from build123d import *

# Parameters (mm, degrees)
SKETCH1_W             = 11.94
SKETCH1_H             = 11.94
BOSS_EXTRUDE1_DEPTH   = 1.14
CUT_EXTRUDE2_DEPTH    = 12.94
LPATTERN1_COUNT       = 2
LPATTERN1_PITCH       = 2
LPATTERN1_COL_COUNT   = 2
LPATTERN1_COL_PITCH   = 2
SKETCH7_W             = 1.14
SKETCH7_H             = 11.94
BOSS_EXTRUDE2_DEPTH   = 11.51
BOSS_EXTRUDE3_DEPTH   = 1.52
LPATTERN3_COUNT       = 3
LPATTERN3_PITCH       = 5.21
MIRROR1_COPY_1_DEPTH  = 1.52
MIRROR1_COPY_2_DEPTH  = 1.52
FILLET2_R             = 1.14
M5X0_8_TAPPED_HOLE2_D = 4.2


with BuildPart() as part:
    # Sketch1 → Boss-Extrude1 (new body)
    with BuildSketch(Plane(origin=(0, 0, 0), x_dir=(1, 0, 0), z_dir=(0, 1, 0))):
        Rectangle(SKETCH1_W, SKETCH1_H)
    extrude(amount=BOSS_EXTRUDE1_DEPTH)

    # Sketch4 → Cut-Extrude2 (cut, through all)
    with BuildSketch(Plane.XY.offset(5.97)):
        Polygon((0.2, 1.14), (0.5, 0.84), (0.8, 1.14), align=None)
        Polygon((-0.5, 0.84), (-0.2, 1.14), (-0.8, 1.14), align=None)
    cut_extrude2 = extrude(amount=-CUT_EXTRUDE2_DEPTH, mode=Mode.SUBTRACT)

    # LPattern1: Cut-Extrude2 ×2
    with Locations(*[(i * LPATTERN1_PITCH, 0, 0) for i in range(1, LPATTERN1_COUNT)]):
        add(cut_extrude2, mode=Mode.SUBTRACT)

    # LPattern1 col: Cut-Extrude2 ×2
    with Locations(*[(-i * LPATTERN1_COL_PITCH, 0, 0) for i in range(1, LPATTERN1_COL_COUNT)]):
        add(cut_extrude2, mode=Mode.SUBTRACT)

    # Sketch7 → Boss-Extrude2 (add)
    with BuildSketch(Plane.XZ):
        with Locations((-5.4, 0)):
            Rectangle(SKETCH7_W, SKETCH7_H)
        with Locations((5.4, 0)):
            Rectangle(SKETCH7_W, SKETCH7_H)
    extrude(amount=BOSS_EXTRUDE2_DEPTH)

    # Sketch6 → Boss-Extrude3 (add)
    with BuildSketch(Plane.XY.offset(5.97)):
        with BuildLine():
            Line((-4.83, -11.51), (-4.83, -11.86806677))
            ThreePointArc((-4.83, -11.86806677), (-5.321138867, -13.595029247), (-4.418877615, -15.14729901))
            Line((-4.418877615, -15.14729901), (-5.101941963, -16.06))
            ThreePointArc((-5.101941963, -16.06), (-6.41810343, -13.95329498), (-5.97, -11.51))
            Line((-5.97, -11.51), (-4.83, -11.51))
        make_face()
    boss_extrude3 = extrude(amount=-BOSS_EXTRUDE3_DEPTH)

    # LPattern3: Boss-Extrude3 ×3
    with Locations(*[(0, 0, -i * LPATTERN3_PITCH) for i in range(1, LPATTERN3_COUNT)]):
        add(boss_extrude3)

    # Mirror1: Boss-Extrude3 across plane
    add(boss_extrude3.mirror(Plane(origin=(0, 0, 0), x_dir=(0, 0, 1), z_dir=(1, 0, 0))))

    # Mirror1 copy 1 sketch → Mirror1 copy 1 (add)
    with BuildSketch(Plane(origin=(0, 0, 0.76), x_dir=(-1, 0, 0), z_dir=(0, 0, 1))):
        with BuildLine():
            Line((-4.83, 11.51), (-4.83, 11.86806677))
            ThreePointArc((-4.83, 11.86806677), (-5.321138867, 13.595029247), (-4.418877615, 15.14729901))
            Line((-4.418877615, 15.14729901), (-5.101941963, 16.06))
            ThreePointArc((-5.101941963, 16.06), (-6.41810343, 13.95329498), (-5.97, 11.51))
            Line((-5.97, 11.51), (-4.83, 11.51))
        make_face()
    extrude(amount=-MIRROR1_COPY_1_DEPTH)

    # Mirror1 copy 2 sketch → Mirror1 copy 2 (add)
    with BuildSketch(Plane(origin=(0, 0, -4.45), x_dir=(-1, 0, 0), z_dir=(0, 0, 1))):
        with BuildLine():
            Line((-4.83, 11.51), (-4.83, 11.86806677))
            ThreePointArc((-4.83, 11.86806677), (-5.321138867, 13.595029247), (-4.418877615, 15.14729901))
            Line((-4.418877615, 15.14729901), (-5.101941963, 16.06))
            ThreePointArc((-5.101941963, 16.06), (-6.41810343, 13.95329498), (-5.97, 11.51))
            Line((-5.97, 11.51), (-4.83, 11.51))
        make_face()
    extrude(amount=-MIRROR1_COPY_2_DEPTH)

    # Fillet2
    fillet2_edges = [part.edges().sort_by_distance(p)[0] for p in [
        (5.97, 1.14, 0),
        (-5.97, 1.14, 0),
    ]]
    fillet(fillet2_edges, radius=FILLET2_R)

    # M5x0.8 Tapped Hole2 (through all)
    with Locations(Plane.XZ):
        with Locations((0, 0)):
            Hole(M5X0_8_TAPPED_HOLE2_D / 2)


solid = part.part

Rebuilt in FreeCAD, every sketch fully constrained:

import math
import FreeCAD as App
import Part
import Sketcher
Q = App.Units.Quantity


def edges_at(feature, points):
    """Names of the edges that pass closest to the given points."""
    edges = feature.Shape.Edges
    near = lambda p: min(range(len(edges)), key=lambda i: edges[i].distToShape(Part.Vertex(*p))[0])
    return sorted({f"Edge{near(p) + 1}" for p in points})

doc = App.newDocument("Part")
body = doc.addObject("PartDesign::Body", "Body")

# Sketch on XZ plane
sketch1 = doc.addObject("Sketcher::SketchObject", "Sketch")
body.addObject(sketch1)
sketch1.AttachmentSupport = (doc.XZ_Plane, [""])
sketch1.MapMode = "FlatFace"
sketch1.addGeometry(Part.LineSegment(App.Vector(-5.97, -5.97, 0), App.Vector(-5.97, 5.97, 0)), False)
sketch1.addGeometry(Part.LineSegment(App.Vector(-5.97, 5.97, 0), App.Vector(5.97, 5.97, 0)), False)
sketch1.addGeometry(Part.LineSegment(App.Vector(5.97, 5.97, 0), App.Vector(5.97, -5.97, 0)), False)
sketch1.addGeometry(Part.LineSegment(App.Vector(5.97, -5.97, 0), App.Vector(-5.97, -5.97, 0)), False)
sketch1.addConstraint(Sketcher.Constraint("Coincident", 0, 2, 1, 1))
sketch1.addConstraint(Sketcher.Constraint("Coincident", 1, 2, 2, 1))
sketch1.addConstraint(Sketcher.Constraint("Coincident", 2, 2, 3, 1))
sketch1.addConstraint(Sketcher.Constraint("Coincident", 3, 2, 0, 1))
sketch1.addConstraint(Sketcher.Constraint("Vertical", 0))
sketch1.addConstraint(Sketcher.Constraint("Horizontal", 1))
sketch1.addConstraint(Sketcher.Constraint("Vertical", 2))
sketch1.addConstraint(Sketcher.Constraint("Horizontal", 3))
sketch1.addConstraint(Sketcher.Constraint("Symmetric", 0, 2, 2, 2, -1, 1))
sketch1.addConstraint(Sketcher.Constraint("Equal", 3, 0))
sketch1.addConstraint(Sketcher.Constraint("DistanceX", 1, 1, 1, 2, Q("11.94 mm")))
pad1 = doc.addObject("PartDesign::Pad", "Pad")
body.addObject(pad1)
pad1.Profile = sketch1
pad1.Length = 1.14
pad1.Reversed = True

# Sketch on XY plane
sketch2 = doc.addObject("Sketcher::SketchObject", "Sketch001")
body.addObject(sketch2)
sketch2.AttachmentSupport = (doc.XY_Plane, [""])
sketch2.MapMode = "FlatFace"
sketch2.AttachmentOffset = App.Placement(App.Vector(0, 0, 5.97), App.Rotation())
sketch2.addGeometry(Part.LineSegment(App.Vector(0.2, 1.14, 0), App.Vector(0.5, 0.84, 0)), False)
sketch2.addGeometry(Part.LineSegment(App.Vector(0.5, 0.84, 0), App.Vector(0.8, 1.14, 0)), False)
sketch2.addGeometry(Part.LineSegment(App.Vector(0.8, 1.14, 0), App.Vector(0.2, 1.14, 0)), False)
sketch2.addGeometry(Part.LineSegment(App.Vector(-0.5, 0.84, 0), App.Vector(-0.2, 1.14, 0)), False)
sketch2.addGeometry(Part.LineSegment(App.Vector(-0.2, 1.14, 0), App.Vector(-0.8, 1.14, 0)), False)
sketch2.addGeometry(Part.LineSegment(App.Vector(-0.8, 1.14, 0), App.Vector(-0.5, 0.84, 0)), False)
sketch2.addConstraint(Sketcher.Constraint("Coincident", 0, 2, 1, 1))
sketch2.addConstraint(Sketcher.Constraint("Coincident", 1, 2, 2, 1))
sketch2.addConstraint(Sketcher.Constraint("Coincident", 2, 2, 0, 1))
sketch2.addConstraint(Sketcher.Constraint("Coincident", 3, 2, 4, 1))
sketch2.addConstraint(Sketcher.Constraint("Coincident", 4, 2, 5, 1))
sketch2.addConstraint(Sketcher.Constraint("Coincident", 5, 2, 3, 1))
sketch2.addConstraint(Sketcher.Constraint("Horizontal", 2))
sketch2.addConstraint(Sketcher.Constraint("Horizontal", 4))
sketch2.addConstraint(Sketcher.Constraint("Symmetric", 2, 2, 3, 2, -2))
sketch2.addConstraint(Sketcher.Constraint("Symmetric", 0, 2, 5, 2, -2))
sketch2.addConstraint(Sketcher.Constraint("Perpendicular", 0, 1))
sketch2.addConstraint(Sketcher.Constraint("Parallel", 1, 3))
sketch2.addConstraint(Sketcher.Constraint("Perpendicular", 3, 5))
sketch2.addConstraint(Sketcher.Constraint("DistanceX", 2, 2, 2, 1, Q("0.6 mm")))
sketch2.addConstraint(Sketcher.Constraint("DistanceX", 3, 2, 1, 2, Q("1 mm")))
sketch2.addConstraint(Sketcher.Constraint("DistanceY", -1, 1, 0, 2, Q("0.84 mm")))
pocket1 = doc.addObject("PartDesign::Pocket", "Pocket")
body.addObject(pocket1)
pocket1.Profile = sketch2
pocket1.Type = "ThroughAll"
doc.recompute()

linearpattern = doc.addObject("PartDesign::LinearPattern", "LinearPattern")
body.addObject(linearpattern)
linearpattern.Originals = [pocket1]
linearpattern.Direction = (doc.X_Axis, [""])
linearpattern.Mode = "offset"
linearpattern.Offset = 2
linearpattern.Occurrences = 2
body.Tip = linearpattern
doc.recompute()

linearpattern2 = doc.addObject("PartDesign::LinearPattern", "LinearPattern001")
body.addObject(linearpattern2)
linearpattern2.Originals = [pocket1]
linearpattern2.Direction = (doc.X_Axis, [""])
linearpattern2.Mode = "offset"
linearpattern2.Offset = 2
linearpattern2.Occurrences = 2
linearpattern2.Reversed = True
body.Tip = linearpattern2

# Sketch on XZ plane
sketch3 = doc.addObject("Sketcher::SketchObject", "Sketch002")
body.addObject(sketch3)
sketch3.AttachmentSupport = (doc.XZ_Plane, [""])
sketch3.MapMode = "FlatFace"
sketch3.addGeometry(Part.LineSegment(App.Vector(-5.97, 5.97, 0), App.Vector(-5.97, -5.97, 0)), False)
sketch3.addGeometry(Part.LineSegment(App.Vector(-5.97, -5.97, 0), App.Vector(-4.83, -5.97, 0)), False)
sketch3.addGeometry(Part.LineSegment(App.Vector(-4.83, -5.97, 0), App.Vector(-4.83, 5.97, 0)), False)
sketch3.addGeometry(Part.LineSegment(App.Vector(-4.83, 5.97, 0), App.Vector(-5.97, 5.97, 0)), False)
sketch3.addGeometry(Part.LineSegment(App.Vector(4.83, 5.97, 0), App.Vector(4.83, -5.97, 0)), False)
sketch3.addGeometry(Part.LineSegment(App.Vector(4.83, -5.97, 0), App.Vector(5.97, -5.97, 0)), False)
sketch3.addGeometry(Part.LineSegment(App.Vector(5.97, -5.97, 0), App.Vector(5.97, 5.97, 0)), False)
sketch3.addGeometry(Part.LineSegment(App.Vector(5.97, 5.97, 0), App.Vector(4.83, 5.97, 0)), False)
sketch3.addConstraint(Sketcher.Constraint("Coincident", 0, 2, 1, 1))
sketch3.addConstraint(Sketcher.Constraint("Coincident", 1, 2, 2, 1))
sketch3.addConstraint(Sketcher.Constraint("Coincident", 2, 2, 3, 1))
sketch3.addConstraint(Sketcher.Constraint("Coincident", 3, 2, 0, 1))
sketch3.addConstraint(Sketcher.Constraint("Coincident", 4, 2, 5, 1))
sketch3.addConstraint(Sketcher.Constraint("Coincident", 5, 2, 6, 1))
sketch3.addConstraint(Sketcher.Constraint("Coincident", 6, 2, 7, 1))
sketch3.addConstraint(Sketcher.Constraint("Coincident", 7, 2, 4, 1))
sketch3.addConstraint(Sketcher.Constraint("Vertical", 0))
sketch3.addConstraint(Sketcher.Constraint("Horizontal", 1))
sketch3.addConstraint(Sketcher.Constraint("Vertical", 2))
sketch3.addConstraint(Sketcher.Constraint("Horizontal", 3))
sketch3.addConstraint(Sketcher.Constraint("Vertical", 4))
sketch3.addConstraint(Sketcher.Constraint("Horizontal", 5))
sketch3.addConstraint(Sketcher.Constraint("Vertical", 6))
sketch3.addConstraint(Sketcher.Constraint("Horizontal", 7))
sketch3.addConstraint(Sketcher.Constraint("Symmetric", 2, 2, 4, 2, -1, 1))
sketch3.addConstraint(Sketcher.Constraint("Symmetric", 0, 2, 6, 2, -1, 1))
sketch3.addConstraint(Sketcher.Constraint("Horizontal", 1, 2, 4, 2))
sketch3.addConstraint(Sketcher.Constraint("DistanceX", 1, 1, 1, 2, Q("1.14 mm")))
sketch3.addConstraint(Sketcher.Constraint("DistanceY", 0, 2, 0, 1, Q("11.94 mm")))
sketch3.addConstraint(Sketcher.Constraint("DistanceX", 0, 2, 4, 2, Q("10.8 mm")))
pad2 = doc.addObject("PartDesign::Pad", "Pad001")
body.addObject(pad2)
pad2.Profile = sketch3
pad2.Length = 11.51

# Sketch on XY plane
sketch4 = doc.addObject("Sketcher::SketchObject", "Sketch003")
body.addObject(sketch4)
sketch4.AttachmentSupport = (doc.XY_Plane, [""])
sketch4.MapMode = "FlatFace"
sketch4.AttachmentOffset = App.Placement(App.Vector(0, 0, 5.97), App.Rotation())
sketch4.addGeometry(Part.LineSegment(App.Vector(-4.83, -11.868067, 0), App.Vector(-4.83, -11.51, 0)), False)
sketch4.addGeometry(Part.LineSegment(App.Vector(-4.83, -11.51, 0), App.Vector(-5.97, -11.51, 0)), False)
sketch4.addGeometry(Part.ArcOfCircle(Part.Circle(App.Vector(-3.04345, -13.309472, 0), App.Vector(0, 0, 1), 3.435519), math.radians(148.413547), math.radians(233.188862)), False)
sketch4.addGeometry(Part.LineSegment(App.Vector(-5.101942, -16.06, 0), App.Vector(-4.418878, -15.147299, 0)), False)
sketch4.addGeometry(Part.ArcOfCircle(Part.Circle(App.Vector(-3.04345, -13.309472, 0), App.Vector(0, 0, 1), 2.295519), math.radians(141.103089), math.radians(233.188862)), False)
sketch4.addConstraint(Sketcher.Constraint("Coincident", 0, 2, 1, 1))
sketch4.addConstraint(Sketcher.Constraint("Coincident", 1, 2, 2, 1))
sketch4.addConstraint(Sketcher.Constraint("Coincident", 2, 2, 3, 1))
sketch4.addConstraint(Sketcher.Constraint("Coincident", 3, 2, 4, 2))
sketch4.addConstraint(Sketcher.Constraint("Coincident", 4, 1, 0, 1))
sketch4.addConstraint(Sketcher.Constraint("Vertical", 0))
sketch4.addConstraint(Sketcher.Constraint("Horizontal", 1))
sketch4.addConstraint(Sketcher.Constraint("Coincident", 4, 3, 2, 3))
sketch4.addConstraint(Sketcher.Constraint("DistanceX", 1, 2, 1, 1, Q("1.14 mm")))
sketch4.addConstraint(Sketcher.Constraint("Distance", 3, Q("1.14 mm")))
sketch4.addConstraint(Sketcher.Constraint("DistanceX", 0, 2, -1, 1, Q("4.83 mm")))
sketch4.addConstraint(Sketcher.Constraint("DistanceY", 0, 2, -1, 1, Q("11.51 mm")))
sketch4.addConstraint(Sketcher.Constraint("DistanceY", 2, 2, -1, 1, Q("16.06 mm")))
sketch4.addConstraint(Sketcher.Constraint("Radius", 2, Q("3.435519 mm")))
sketch4.addConstraint(Sketcher.Constraint("DistanceY", 3, 2, -1, 1, Q("15.147299 mm")))
sketch4.addConstraint(Sketcher.Constraint("DistanceY", 0, 1, 0, 2, Q("0.358067 mm")))
pad3 = doc.addObject("PartDesign::Pad", "Pad002")
body.addObject(pad3)
pad3.Profile = sketch4
pad3.Length = 1.52
pad3.Reversed = True
doc.recompute()

linearpattern3 = doc.addObject("PartDesign::LinearPattern", "LinearPattern002")
body.addObject(linearpattern3)
linearpattern3.Originals = [pad3]
linearpattern3.Direction = (doc.Z_Axis, [""])
linearpattern3.Mode = "offset"
linearpattern3.Offset = 5.21
linearpattern3.Occurrences = 3
linearpattern3.Reversed = True
body.Tip = linearpattern3
doc.recompute()

mirrored = doc.addObject("PartDesign::Mirrored", "Mirrored")
body.addObject(mirrored)
mirrored.Originals = [pad3]
mirrored.MirrorPlane = (doc.YZ_Plane, [""])
body.Tip = mirrored

# Sketch on XY plane
sketch5 = doc.addObject("Sketcher::SketchObject", "Sketch004")
body.addObject(sketch5)
sketch5.AttachmentSupport = (doc.XY_Plane, [""])
sketch5.MapMode = "FlatFace"
sketch5.AttachmentOffset = App.Placement(App.Vector(0, 0, 0.76), App.Rotation())
sketch5.addGeometry(Part.LineSegment(App.Vector(4.83, -11.51, 0), App.Vector(4.83, -11.868067, 0)), False)
sketch5.addGeometry(Part.ArcOfCircle(Part.Circle(App.Vector(3.04345, -13.309472, 0), App.Vector(0, 0, 1), 2.295519), math.radians(-53.188862), math.radians(38.896911)), False)
sketch5.addGeometry(Part.LineSegment(App.Vector(4.418878, -15.147299, 0), App.Vector(5.101942, -16.06, 0)), False)
sketch5.addGeometry(Part.ArcOfCircle(Part.Circle(App.Vector(3.04345, -13.309472, 0), App.Vector(0, 0, 1), 3.435519), math.radians(-53.188862), math.radians(31.586453)), False)
sketch5.addGeometry(Part.LineSegment(App.Vector(5.97, -11.51, 0), App.Vector(4.83, -11.51, 0)), False)
sketch5.addConstraint(Sketcher.Constraint("Coincident", 0, 2, 1, 2))
sketch5.addConstraint(Sketcher.Constraint("Coincident", 1, 1, 2, 1))
sketch5.addConstraint(Sketcher.Constraint("Coincident", 2, 2, 3, 1))
sketch5.addConstraint(Sketcher.Constraint("Coincident", 3, 2, 4, 1))
sketch5.addConstraint(Sketcher.Constraint("Coincident", 4, 2, 0, 1))
sketch5.addConstraint(Sketcher.Constraint("Vertical", 0))
sketch5.addConstraint(Sketcher.Constraint("Horizontal", 4))
sketch5.addConstraint(Sketcher.Constraint("Coincident", 3, 3, 1, 3))
sketch5.addConstraint(Sketcher.Constraint("DistanceX", 4, 2, 4, 1, Q("1.14 mm")))
sketch5.addConstraint(Sketcher.Constraint("Distance", 2, Q("1.14 mm")))
sketch5.addConstraint(Sketcher.Constraint("DistanceX", -1, 1, 0, 2, Q("4.83 mm")))
sketch5.addConstraint(Sketcher.Constraint("DistanceY", 2, 2, -1, 1, Q("16.06 mm")))
sketch5.addConstraint(Sketcher.Constraint("DistanceY", 3, 2, -1, 1, Q("11.51 mm")))
sketch5.addConstraint(Sketcher.Constraint("Radius", 1, Q("2.295519 mm")))
sketch5.addConstraint(Sketcher.Constraint("DistanceY", 1, 1, -1, 1, Q("15.147299 mm")))
sketch5.addConstraint(Sketcher.Constraint("DistanceY", 0, 2, 0, 1, Q("0.358067 mm")))
pad4 = doc.addObject("PartDesign::Pad", "Pad003")
body.addObject(pad4)
pad4.Profile = sketch5
pad4.Length = 1.52
pad4.Reversed = True

# Sketch on XY plane
sketch6 = doc.addObject("Sketcher::SketchObject", "Sketch005")
body.addObject(sketch6)
sketch6.AttachmentSupport = (doc.XY_Plane, [""])
sketch6.MapMode = "FlatFace"
sketch6.AttachmentOffset = App.Placement(App.Vector(0, 0, -4.45), App.Rotation())
sketch6.addGeometry(Part.LineSegment(App.Vector(4.83, -11.51, 0), App.Vector(4.83, -11.868067, 0)), False)
sketch6.addGeometry(Part.ArcOfCircle(Part.Circle(App.Vector(3.04345, -13.309472, 0), App.Vector(0, 0, 1), 2.295519), math.radians(-53.188862), math.radians(38.896911)), False)
sketch6.addGeometry(Part.LineSegment(App.Vector(4.418878, -15.147299, 0), App.Vector(5.101942, -16.06, 0)), False)
sketch6.addGeometry(Part.ArcOfCircle(Part.Circle(App.Vector(3.04345, -13.309472, 0), App.Vector(0, 0, 1), 3.435519), math.radians(-53.188862), math.radians(31.586453)), False)
sketch6.addGeometry(Part.LineSegment(App.Vector(5.97, -11.51, 0), App.Vector(4.83, -11.51, 0)), False)
sketch6.addConstraint(Sketcher.Constraint("Coincident", 0, 2, 1, 2))
sketch6.addConstraint(Sketcher.Constraint("Coincident", 1, 1, 2, 1))
sketch6.addConstraint(Sketcher.Constraint("Coincident", 2, 2, 3, 1))
sketch6.addConstraint(Sketcher.Constraint("Coincident", 3, 2, 4, 1))
sketch6.addConstraint(Sketcher.Constraint("Coincident", 4, 2, 0, 1))
sketch6.addConstraint(Sketcher.Constraint("Vertical", 0))
sketch6.addConstraint(Sketcher.Constraint("Horizontal", 4))
sketch6.addConstraint(Sketcher.Constraint("Coincident", 3, 3, 1, 3))
sketch6.addConstraint(Sketcher.Constraint("DistanceX", 4, 2, 4, 1, Q("1.14 mm")))
sketch6.addConstraint(Sketcher.Constraint("Distance", 2, Q("1.14 mm")))
sketch6.addConstraint(Sketcher.Constraint("DistanceX", -1, 1, 0, 2, Q("4.83 mm")))
sketch6.addConstraint(Sketcher.Constraint("DistanceY", 2, 2, -1, 1, Q("16.06 mm")))
sketch6.addConstraint(Sketcher.Constraint("DistanceY", 3, 2, -1, 1, Q("11.51 mm")))
sketch6.addConstraint(Sketcher.Constraint("Radius", 1, Q("2.295519 mm")))
sketch6.addConstraint(Sketcher.Constraint("DistanceY", 1, 1, -1, 1, Q("15.147299 mm")))
sketch6.addConstraint(Sketcher.Constraint("DistanceY", 0, 2, 0, 1, Q("0.358067 mm")))
pad5 = doc.addObject("PartDesign::Pad", "Pad004")
body.addObject(pad5)
pad5.Profile = sketch6
pad5.Length = 1.52
pad5.Reversed = True
doc.recompute()

fillet = doc.addObject("PartDesign::Fillet", "Fillet")
body.addObject(fillet)
fillet.Base = (pad5, edges_at(pad5, [(5.97, 1.14, 0), (-5.97, 1.14, 0)]))
fillet.Radius = 1.14

# Sketch on XZ plane
sketch7 = doc.addObject("Sketcher::SketchObject", "Sketch006")
body.addObject(sketch7)
sketch7.AttachmentSupport = (doc.XZ_Plane, [""])
sketch7.MapMode = "FlatFace"
sketch7.addGeometry(Part.Circle(App.Vector(0, 0, 0), App.Vector(0, 0, 1), 2.1), False)
sketch7.addConstraint(Sketcher.Constraint("Coincident", 0, 3, -1, 1))
sketch7.addConstraint(Sketcher.Constraint("Diameter", 0, Q("4.2 mm")))
doc.recompute()
hole = doc.addObject("PartDesign::Hole", "Hole")
body.addObject(hole)
hole.Profile = sketch7
hole.ThreadType = "None"
hole.Diameter = 4.2
hole.DepthType = "ThroughAll"

doc.recompute()
